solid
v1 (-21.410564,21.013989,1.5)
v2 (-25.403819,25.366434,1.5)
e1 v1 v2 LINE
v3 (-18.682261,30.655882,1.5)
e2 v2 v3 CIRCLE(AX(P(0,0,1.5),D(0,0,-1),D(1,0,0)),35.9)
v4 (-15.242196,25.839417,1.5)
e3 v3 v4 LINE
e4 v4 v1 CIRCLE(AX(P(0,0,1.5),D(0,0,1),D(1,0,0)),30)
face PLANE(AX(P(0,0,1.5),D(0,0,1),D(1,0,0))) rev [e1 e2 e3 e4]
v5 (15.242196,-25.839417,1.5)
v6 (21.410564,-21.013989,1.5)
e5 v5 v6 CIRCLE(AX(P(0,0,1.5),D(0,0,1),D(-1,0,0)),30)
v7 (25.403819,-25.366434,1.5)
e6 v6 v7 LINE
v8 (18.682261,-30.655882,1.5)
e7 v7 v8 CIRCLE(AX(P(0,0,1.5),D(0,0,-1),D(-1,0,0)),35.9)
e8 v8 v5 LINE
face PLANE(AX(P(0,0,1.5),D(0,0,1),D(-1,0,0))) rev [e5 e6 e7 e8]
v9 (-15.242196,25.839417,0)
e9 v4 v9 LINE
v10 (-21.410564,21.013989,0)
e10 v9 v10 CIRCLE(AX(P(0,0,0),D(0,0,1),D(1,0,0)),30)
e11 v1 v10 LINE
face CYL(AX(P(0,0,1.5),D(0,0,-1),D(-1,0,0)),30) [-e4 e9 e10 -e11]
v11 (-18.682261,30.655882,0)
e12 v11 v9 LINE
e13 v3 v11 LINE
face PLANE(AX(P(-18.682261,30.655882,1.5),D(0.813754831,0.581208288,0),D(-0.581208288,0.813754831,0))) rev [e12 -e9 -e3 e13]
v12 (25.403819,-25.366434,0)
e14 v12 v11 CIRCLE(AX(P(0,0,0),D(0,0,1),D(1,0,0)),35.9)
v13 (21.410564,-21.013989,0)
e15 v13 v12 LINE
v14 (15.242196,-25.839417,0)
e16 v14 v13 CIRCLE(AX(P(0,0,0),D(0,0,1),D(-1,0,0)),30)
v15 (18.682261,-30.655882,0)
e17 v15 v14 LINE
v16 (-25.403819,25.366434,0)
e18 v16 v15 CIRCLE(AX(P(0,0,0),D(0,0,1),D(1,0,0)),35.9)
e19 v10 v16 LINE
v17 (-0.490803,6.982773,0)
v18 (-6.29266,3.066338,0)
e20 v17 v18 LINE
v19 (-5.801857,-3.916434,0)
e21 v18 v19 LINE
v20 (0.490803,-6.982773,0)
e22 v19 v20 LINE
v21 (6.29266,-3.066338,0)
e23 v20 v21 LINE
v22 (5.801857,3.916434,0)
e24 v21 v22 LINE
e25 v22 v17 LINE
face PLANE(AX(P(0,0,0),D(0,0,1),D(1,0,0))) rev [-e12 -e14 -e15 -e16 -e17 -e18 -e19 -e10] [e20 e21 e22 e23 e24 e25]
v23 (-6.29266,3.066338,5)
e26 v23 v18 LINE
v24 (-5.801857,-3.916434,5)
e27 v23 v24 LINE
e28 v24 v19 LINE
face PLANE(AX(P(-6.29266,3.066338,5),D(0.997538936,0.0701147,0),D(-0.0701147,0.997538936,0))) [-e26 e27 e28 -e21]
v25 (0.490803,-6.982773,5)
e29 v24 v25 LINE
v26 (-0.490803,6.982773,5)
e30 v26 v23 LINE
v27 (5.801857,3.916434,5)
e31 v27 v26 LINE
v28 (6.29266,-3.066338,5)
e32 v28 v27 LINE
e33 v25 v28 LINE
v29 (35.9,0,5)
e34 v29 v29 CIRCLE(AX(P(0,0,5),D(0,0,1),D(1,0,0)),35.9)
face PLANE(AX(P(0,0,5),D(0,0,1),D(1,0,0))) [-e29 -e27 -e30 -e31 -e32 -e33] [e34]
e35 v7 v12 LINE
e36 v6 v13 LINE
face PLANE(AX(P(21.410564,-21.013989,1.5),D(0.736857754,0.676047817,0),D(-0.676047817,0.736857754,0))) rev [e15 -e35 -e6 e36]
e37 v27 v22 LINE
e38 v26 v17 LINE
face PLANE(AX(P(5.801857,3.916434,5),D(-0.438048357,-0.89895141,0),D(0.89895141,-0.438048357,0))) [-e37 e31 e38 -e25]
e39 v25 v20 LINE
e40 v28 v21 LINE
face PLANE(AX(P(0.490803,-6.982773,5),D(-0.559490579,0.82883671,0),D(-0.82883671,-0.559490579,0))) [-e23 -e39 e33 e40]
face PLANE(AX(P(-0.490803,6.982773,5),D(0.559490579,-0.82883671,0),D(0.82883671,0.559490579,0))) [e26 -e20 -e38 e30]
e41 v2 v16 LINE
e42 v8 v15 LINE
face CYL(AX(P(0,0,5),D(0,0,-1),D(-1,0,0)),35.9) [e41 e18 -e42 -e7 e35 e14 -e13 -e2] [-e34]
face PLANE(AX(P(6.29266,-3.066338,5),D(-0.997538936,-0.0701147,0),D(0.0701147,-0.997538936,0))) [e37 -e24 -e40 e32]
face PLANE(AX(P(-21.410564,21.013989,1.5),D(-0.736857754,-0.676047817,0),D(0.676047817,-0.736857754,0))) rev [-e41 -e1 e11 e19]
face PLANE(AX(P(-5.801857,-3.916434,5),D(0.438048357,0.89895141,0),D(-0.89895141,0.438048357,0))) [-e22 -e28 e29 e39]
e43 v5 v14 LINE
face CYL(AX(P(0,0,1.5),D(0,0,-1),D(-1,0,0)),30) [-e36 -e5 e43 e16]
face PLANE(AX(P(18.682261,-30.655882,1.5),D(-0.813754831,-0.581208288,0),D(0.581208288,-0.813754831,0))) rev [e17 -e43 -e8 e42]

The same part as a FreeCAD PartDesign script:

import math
import FreeCAD as App
import Part
import Sketcher

V = App.Vector
Q = App.Units.Quantity


def add_polygon(sketch, points):
    """Adds a closed chain of lines whose ends are joined by coincident constraints."""
    first, n = sketch.GeometryCount, len(points)
    for a, b in zip(points, points[1:] + points[:1]):
        sketch.addGeometry(Part.LineSegment(App.Vector(*a, 0), App.Vector(*b, 0)), False)
    for i in range(n):
        sketch.addConstraint(Sketcher.Constraint("Coincident", first + i, 2, first + (i + 1) % n, 1))

doc = App.newDocument("Part")
params = doc.addObject("Spreadsheet::Sheet", "Params")
for row, (alias, value) in enumerate([
    ("sketch1_diameter", "71.8 mm"),
    ("sketch1_length", "7 mm"),
    ("pad1_length", "5 mm"),
    ("sketch2_radius", "30 mm"),
    ("sketch2_radius2", "35.9 mm"),
    ("pocket1_length", "1.5 mm"),
], start=1):
    params.set(f"A{row}", alias)
    params.set(f"B{row}", "=" + value)
    params.setAlias(f"B{row}", alias)

body = doc.addObject("PartDesign::Body", "Body")

sketch1 = body.newObject("Sketcher::SketchObject", "Sketch")
sketch1.AttachmentSupport = (doc.getObject("XY_Plane"), [""])
sketch1.MapMode = "FlatFace"
sketch1.addGeometry(Part.Circle(V(0, 0, 0), V(0, 0, 1), 36), False)
add_polygon(sketch1, [(6, 4), (6, -3), (0, -7), (-6, -4), (-6, 3), (0, 7)])
sketch1.addConstraint(Sketcher.Constraint("Coincident", 0, 3, -1, 1))
sketch1.addConstraint(Sketcher.Constraint("Symmetric", 1, 2, 4, 2, -1, 1))
sketch1.addConstraint(Sketcher.Constraint("Symmetric", 2, 2, 5, 2, -1, 1))
sketch1.addConstraint(Sketcher.Constraint("Symmetric", 3, 2, 6, 2, -1, 1))
sketch1.addConstraint(Sketcher.Constraint("Equal", 1, 2))
sketch1.addConstraint(Sketcher.Constraint("Equal", 2, 3))
sketch1.addConstraint(Sketcher.Constraint("Diameter", 0, Q("71.8 mm")))
sketch1.addConstraint(Sketcher.Constraint("Distance", 1, Q("7 mm")))
sketch1.addConstraint(Sketcher.Constraint("DistanceX", -1, 1, 1, 2, Q("6.29266 mm")))
sketch1.addConstraint(Sketcher.Constraint("DistanceY", 1, 2, -1, 1, Q("3.066338 mm")))
sketch1.addConstraint(Sketcher.Constraint("DistanceX", 3, 2, 2, 2, Q("6.29266 mm")))
sketch1.setExpression("Constraints[12]", "Params.sketch1_diameter")
sketch1.setExpression("Constraints[13]", "Params.sketch1_length")
pad1 = body.newObject("PartDesign::Pad", "Pad")
pad1.Profile = sketch1
pad1.setExpression("Length", "Params.pad1_length")

sketch2 = body.newObject("Sketcher::SketchObject", "Sketch001")
sketch2.AttachmentSupport = (doc.getObject("XY_Plane"), [""])
sketch2.MapMode = "FlatFace"
sketch2.addGeometry(Part.LineSegment(V(-19, 31, 0), V(-15, 26, 0)), False)
sketch2.addGeometry(Part.ArcOfCircle(Part.Circle(V(0, 0, 0), V(0, 0, 1), 30), math.radians(120.54), math.radians(135.54)), False)
sketch2.addGeometry(Part.LineSegment(V(-21, 21, 0), V(-25, 25, 0)), False)
sketch2.addGeometry(Part.ArcOfCircle(Part.Circle(V(0, 0, 0), V(0, 0, 1), 36), math.radians(121.36), math.radians(135.04)), False)
sketch2.addConstraint(Sketcher.Constraint("Coincident", 0, 2, 1, 1))
sketch2.addConstraint(Sketcher.Constraint("Coincident", 1, 2, 2, 1))
sketch2.addConstraint(Sketcher.Constraint("Coincident", 2, 2, 3, 2))
sketch2.addConstraint(Sketcher.Constraint("Coincident", 3, 1, 0, 1))
sketch2.addConstraint(Sketcher.Constraint("Coincident", 1, 3, -1, 1))
sketch2.addConstraint(Sketcher.Constraint("Coincident", 3, 3, -1, 1))
sketch2.addConstraint(Sketcher.Constraint("Radius", 1, Q("30 mm")))
sketch2.addConstraint(Sketcher.Constraint("Radius", 3, Q("35.9 mm")))
sketch2.addConstraint(Sketcher.Constraint("DistanceY", -1, 1, 1, 2, Q("21.013989 mm")))
sketch2.addConstraint(Sketcher.Constraint("DistanceX", 2, 2, -1, 1, Q("25.403819 mm")))
sketch2.addConstraint(Sketcher.Constraint("DistanceX", 3, 1, -1, 1, Q("18.682261 mm")))
sketch2.addConstraint(Sketcher.Constraint("Distance", 0, Q("5.918816 mm")))
sketch2.setExpression("Constraints[6]", "Params.sketch2_radius")
sketch2.setExpression("Constraints[7]", "Params.sketch2_radius2")
pocket1 = body.newObject("PartDesign::Pocket", "Pocket")
pocket1.Profile = sketch2
pocket1.setExpression("Length", "Params.pocket1_length")
pocket1.Reversed = True
doc.recompute()

polarpattern = body.newObject("PartDesign::PolarPattern", "PolarPattern")
polarpattern.Originals = [pocket1]
polarpattern.Axis = (doc.getObject("Z_Axis"), [""])
polarpattern.Angle = 360
polarpattern.Occurrences = 2
body.Tip = polarpattern

doc.recompute()
